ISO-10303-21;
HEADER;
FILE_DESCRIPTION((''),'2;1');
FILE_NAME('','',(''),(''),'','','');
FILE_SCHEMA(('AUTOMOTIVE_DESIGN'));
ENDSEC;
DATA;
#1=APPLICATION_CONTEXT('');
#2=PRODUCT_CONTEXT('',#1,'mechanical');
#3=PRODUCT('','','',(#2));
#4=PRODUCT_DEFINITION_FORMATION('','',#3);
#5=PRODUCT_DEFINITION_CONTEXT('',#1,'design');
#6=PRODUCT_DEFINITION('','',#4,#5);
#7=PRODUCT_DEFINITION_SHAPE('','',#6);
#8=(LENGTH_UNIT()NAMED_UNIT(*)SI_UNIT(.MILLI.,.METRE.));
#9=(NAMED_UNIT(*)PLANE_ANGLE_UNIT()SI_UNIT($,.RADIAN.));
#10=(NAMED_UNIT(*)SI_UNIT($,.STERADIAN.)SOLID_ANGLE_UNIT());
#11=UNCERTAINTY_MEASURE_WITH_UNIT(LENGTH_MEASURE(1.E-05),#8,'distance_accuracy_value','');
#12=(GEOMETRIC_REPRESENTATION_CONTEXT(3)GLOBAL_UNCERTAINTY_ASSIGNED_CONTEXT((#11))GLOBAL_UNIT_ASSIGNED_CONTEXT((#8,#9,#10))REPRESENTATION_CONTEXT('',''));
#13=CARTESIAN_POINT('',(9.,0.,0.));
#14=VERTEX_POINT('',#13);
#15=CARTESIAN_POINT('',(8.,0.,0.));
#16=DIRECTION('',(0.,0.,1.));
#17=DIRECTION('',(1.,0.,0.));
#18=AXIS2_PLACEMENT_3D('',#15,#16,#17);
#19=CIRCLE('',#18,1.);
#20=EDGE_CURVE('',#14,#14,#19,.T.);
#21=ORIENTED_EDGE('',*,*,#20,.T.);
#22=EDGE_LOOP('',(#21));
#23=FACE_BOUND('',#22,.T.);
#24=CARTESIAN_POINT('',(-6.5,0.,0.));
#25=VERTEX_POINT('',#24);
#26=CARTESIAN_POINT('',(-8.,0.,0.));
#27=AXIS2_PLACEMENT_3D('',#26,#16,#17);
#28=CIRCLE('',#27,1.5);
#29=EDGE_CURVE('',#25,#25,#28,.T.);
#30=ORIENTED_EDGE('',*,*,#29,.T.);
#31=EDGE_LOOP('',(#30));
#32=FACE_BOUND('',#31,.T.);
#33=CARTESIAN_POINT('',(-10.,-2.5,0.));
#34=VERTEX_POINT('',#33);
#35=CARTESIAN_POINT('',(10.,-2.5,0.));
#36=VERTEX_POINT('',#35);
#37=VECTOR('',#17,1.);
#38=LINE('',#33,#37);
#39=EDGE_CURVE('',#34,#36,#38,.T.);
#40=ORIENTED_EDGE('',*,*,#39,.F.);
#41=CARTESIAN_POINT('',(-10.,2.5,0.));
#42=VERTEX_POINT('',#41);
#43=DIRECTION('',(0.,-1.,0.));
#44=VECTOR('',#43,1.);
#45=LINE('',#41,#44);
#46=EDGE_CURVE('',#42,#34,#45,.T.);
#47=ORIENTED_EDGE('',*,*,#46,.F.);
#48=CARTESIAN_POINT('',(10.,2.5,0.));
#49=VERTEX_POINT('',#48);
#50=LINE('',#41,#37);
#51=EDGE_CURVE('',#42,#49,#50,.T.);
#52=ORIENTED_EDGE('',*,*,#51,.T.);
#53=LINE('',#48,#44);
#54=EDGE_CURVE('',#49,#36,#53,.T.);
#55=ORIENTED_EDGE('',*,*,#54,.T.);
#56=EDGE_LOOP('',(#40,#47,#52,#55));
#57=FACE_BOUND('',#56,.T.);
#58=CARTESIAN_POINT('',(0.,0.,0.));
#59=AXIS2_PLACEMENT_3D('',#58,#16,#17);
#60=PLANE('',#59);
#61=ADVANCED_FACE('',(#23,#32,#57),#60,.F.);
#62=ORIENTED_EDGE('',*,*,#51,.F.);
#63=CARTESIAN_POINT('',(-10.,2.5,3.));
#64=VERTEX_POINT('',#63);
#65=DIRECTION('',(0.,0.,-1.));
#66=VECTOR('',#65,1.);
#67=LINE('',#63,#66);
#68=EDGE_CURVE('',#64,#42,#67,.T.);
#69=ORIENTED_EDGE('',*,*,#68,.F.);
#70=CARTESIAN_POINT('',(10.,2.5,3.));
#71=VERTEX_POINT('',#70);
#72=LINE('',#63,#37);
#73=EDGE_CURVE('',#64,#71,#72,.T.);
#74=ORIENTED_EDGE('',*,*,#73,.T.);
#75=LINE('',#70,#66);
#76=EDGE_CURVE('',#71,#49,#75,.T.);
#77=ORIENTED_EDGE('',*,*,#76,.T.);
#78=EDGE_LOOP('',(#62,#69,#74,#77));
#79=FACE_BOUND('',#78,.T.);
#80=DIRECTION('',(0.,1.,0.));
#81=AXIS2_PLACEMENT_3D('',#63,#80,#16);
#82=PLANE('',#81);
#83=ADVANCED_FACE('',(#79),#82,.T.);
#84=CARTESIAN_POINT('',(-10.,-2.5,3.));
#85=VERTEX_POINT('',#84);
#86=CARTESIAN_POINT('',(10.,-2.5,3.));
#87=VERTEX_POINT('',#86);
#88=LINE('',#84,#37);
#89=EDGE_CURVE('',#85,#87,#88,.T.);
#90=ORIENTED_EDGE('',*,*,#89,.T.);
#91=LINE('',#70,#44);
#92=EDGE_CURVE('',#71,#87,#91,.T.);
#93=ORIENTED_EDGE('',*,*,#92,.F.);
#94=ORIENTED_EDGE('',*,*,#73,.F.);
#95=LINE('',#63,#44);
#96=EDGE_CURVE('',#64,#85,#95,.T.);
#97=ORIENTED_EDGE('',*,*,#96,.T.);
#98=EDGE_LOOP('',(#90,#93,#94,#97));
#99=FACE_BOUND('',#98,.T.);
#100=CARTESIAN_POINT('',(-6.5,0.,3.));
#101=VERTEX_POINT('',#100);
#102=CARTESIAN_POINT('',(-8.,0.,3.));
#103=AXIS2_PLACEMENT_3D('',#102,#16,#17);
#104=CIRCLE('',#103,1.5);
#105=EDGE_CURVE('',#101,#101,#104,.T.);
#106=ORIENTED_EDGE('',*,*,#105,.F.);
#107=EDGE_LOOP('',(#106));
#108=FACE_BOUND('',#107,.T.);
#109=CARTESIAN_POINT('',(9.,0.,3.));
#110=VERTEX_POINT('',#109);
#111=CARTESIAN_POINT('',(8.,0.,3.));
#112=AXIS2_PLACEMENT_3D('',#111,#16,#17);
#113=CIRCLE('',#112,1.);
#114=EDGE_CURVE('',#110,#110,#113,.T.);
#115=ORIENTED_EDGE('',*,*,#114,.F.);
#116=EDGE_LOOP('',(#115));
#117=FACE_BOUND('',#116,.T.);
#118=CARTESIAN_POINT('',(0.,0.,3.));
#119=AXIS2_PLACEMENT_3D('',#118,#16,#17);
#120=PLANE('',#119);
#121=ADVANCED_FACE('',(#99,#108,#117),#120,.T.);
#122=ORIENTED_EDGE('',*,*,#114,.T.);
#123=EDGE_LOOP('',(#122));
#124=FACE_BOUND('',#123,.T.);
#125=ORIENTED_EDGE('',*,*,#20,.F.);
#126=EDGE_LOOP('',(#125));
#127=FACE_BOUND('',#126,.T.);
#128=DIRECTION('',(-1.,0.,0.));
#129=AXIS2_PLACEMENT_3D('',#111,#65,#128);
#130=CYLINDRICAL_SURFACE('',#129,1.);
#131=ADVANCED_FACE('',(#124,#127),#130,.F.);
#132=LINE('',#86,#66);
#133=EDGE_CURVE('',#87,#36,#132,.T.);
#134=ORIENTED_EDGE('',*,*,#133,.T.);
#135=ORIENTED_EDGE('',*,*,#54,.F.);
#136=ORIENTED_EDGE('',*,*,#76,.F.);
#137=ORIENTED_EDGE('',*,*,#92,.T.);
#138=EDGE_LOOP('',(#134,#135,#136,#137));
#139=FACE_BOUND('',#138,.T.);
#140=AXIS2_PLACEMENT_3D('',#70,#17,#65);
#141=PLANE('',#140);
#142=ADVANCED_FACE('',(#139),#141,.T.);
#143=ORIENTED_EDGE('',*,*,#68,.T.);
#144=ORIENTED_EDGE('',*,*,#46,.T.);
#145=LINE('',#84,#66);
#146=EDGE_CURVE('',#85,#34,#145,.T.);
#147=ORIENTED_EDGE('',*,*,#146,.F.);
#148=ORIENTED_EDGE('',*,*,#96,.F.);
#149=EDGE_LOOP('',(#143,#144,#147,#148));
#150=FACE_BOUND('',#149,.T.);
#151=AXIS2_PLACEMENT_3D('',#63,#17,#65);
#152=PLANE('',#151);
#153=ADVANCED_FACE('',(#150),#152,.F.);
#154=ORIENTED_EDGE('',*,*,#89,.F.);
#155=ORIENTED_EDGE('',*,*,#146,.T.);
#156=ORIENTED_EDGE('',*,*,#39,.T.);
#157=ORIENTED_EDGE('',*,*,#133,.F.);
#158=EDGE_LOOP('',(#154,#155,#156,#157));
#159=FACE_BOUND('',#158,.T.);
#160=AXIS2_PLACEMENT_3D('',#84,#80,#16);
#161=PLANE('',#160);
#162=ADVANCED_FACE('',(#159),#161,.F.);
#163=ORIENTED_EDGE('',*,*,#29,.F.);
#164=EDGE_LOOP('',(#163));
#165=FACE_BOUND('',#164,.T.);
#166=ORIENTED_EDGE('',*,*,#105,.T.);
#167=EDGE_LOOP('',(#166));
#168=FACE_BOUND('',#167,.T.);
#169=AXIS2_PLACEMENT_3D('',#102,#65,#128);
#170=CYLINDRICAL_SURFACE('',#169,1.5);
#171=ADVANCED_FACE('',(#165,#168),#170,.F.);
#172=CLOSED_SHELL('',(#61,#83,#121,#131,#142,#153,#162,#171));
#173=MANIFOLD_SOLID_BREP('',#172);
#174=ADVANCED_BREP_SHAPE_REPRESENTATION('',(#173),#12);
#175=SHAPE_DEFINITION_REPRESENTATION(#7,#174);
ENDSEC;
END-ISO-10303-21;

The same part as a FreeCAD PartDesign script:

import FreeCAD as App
import Part
import Sketcher
from FreeCAD import Vector

doc = App.newDocument("Part")
params = doc.addObject("Spreadsheet::Sheet", "Params")
for row, (alias, value) in enumerate([
    ("sketch1_diameter", "3 mm"),
    ("sketch1_diameter2", "2 mm"),
    ("sketch1_width", "20 mm"),
    ("sketch1_height", "5 mm"),
    ("pad1_length", "3 mm"),
], start=1):
    params.set(f"A{row}", alias)
    params.set(f"B{row}", "=" + value)
    params.setAlias(f"B{row}", alias)

body = doc.addObject("PartDesign::Body", "Body")

# Sketch on XY plane
sketch1 = doc.addObject("Sketcher::SketchObject", "Sketch")
body.addObject(sketch1)
sketch1.AttachmentSupport = (doc.XY_Plane, [""])
sketch1.MapMode = "FlatFace"
sketch1.addGeometry([
    Part.LineSegment(Vector(-10, 2.5, 0), Vector(-10, -2.5, 0)),  # 0
    Part.LineSegment(Vector(-10, -2.5, 0), Vector(10, -2.5, 0)),  # 1
    Part.LineSegment(Vector(10, -2.5, 0), Vector(10, 2.5, 0)),  # 2
    Part.LineSegment(Vector(10, 2.5, 0), Vector(-10, 2.5, 0)),  # 3
    Part.Circle(Vector(-8, 0, 0), Vector(0, 0, 1), 1.5),  # 4
    Part.Circle(Vector(8, 0, 0), Vector(0, 0, 1), 1),  # 5
], False)
sketch1.addConstraint([
    Sketcher.Constraint("Coincident", 0, 2, 1, 1),
    Sketcher.Constraint("Coincident", 1, 2, 2, 1),
    Sketcher.Constraint("Coincident", 2, 2, 3, 1),
    Sketcher.Constraint("Coincident", 3, 2, 0, 1),
    Sketcher.Constraint("Vertical", 0),
    Sketcher.Constraint("Horizontal", 1),
    Sketcher.Constraint("Vertical", 2),
    Sketcher.Constraint("Horizontal", 3),
    Sketcher.Constraint("Symmetric", 4, 3, 5, 3, -1, 1),
    Sketcher.Constraint("Symmetric", 0, 2, 2, 2, -1, 1),
    Sketcher.Constraint("PointOnObject", 4, 3, -1),
    Sketcher.Constraint("Diameter", 4, 3.0),
    Sketcher.Constraint("Diameter", 5, 2.0),
    Sketcher.Constraint("DistanceX", 1, 1, 1, 2, 20.0),
    Sketcher.Constraint("DistanceY", 0, 2, 0, 1, 5.0),
    Sketcher.Constraint("DistanceX", 4, 3, -1, 1, 8.0),
])
sketch1.setExpression("Constraints[11]", "Params.sketch1_diameter")
sketch1.setExpression("Constraints[12]", "Params.sketch1_diameter2")
sketch1.setExpression("Constraints[13]", "Params.sketch1_width")
sketch1.setExpression("Constraints[14]", "Params.sketch1_height")
pad1 = doc.addObject("PartDesign::Pad", "Pad")
body.addObject(pad1)
pad1.Profile = sketch1
pad1.setExpression("Length", "Params.pad1_length")

doc.recompute()
